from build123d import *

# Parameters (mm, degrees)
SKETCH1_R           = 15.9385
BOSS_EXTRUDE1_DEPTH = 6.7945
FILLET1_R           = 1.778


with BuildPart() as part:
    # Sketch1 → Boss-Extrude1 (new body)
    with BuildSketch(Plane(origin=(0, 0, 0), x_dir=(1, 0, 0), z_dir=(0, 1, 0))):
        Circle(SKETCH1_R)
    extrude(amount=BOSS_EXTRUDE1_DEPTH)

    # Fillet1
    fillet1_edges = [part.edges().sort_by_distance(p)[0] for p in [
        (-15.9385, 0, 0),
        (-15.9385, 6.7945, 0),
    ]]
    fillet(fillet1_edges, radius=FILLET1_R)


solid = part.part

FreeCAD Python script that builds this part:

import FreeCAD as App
import Part
import Sketcher

V = App.Vector
Q = App.Units.Quantity


def edges_at(feature, points):
    """Names of the edges that pass closest to the given points."""
    edges = feature.Shape.Edges
    near = lambda p: min(range(len(edges)), key=lambda i: edges[i].distToShape(Part.Vertex(*p))[0])
    return sorted({f"Edge{near(p) + 1}" for p in points})

doc = App.newDocument("Part")
body = doc.addObject("PartDesign::Body", "Body")

sketch1 = body.newObject("Sketcher::SketchObject", "Sketch")
sketch1.AttachmentSupport = (doc.getObject("XZ_Plane"), [""])
sketch1.MapMode = "FlatFace"
sketch1.addGeometry(Part.Circle(V(0, 0, 0), V(0, 0, 1), 16), False)
sketch1.addConstraint(Sketcher.Constraint("Coincident", 0, 3, -1, 1))
sketch1.addConstraint(Sketcher.Constraint("Diameter", 0, Q("1.255 in")))
pad1 = body.newObject("PartDesign::Pad", "Pad")
pad1.Profile = sketch1
pad1.Length = Q("0.2675 in")
pad1.Reversed = True
doc.recompute()

fillet = body.newObject("PartDesign::Fillet", "Fillet")
fillet.Base = (pad1, edges_at(pad1, [(-15.938, 0, 0), (-15.938, 6.795, 0)]))
fillet.Radius = Q("0.07 in")

doc.recompute()
